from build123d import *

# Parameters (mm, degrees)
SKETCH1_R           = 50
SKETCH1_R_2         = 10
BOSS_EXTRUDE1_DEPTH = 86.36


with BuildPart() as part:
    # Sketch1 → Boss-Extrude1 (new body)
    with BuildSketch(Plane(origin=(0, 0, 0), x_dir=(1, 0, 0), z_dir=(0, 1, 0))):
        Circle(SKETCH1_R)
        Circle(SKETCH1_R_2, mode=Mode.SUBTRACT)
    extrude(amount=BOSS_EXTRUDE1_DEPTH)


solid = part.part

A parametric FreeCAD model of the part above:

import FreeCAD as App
import Part
import Sketcher
Q = App.Units.Quantity

doc = App.newDocument("Part")
params = doc.addObject("Spreadsheet::Sheet", "Params")
for row, (alias, value) in enumerate([
    ("sketch1_diameter", "100 mm"),
    ("sketch1_diameter2", "20 mm"),
    ("pad1_length", "86.36 mm"),
], start=1):
    params.set(f"A{row}", alias)
    params.set(f"B{row}", "=" + value)
    params.setAlias(f"B{row}", alias)

body = doc.addObject("PartDesign::Body", "Body")

# Sketch on XZ plane
sketch1 = body.newObject("Sketcher::SketchObject", "Sketch")
sketch1.AttachmentSupport = (doc.getObject("XZ_Plane"), [""])
sketch1.MapMode = "FlatFace"
sketch1.addGeometry(Part.Circle(App.Vector(0, 0, 0), App.Vector(0, 0, 1), 50), False)
sketch1.addGeometry(Part.Circle(App.Vector(0, 0, 0), App.Vector(0, 0, 1), 10), False)
sketch1.addConstraint(Sketcher.Constraint("Coincident", 0, 3, -1, 1))
sketch1.addConstraint(Sketcher.Constraint("Coincident", 1, 3, -1, 1))
sketch1.addConstraint(Sketcher.Constraint("Diameter", 0, Q("100 mm")))
sketch1.addConstraint(Sketcher.Constraint("Diameter", 1, Q("20 mm")))
sketch1.setExpression("Constraints[2]", "Params.sketch1_diameter")
sketch1.setExpression("Constraints[3]", "Params.sketch1_diameter2")
pad1 = body.newObject("PartDesign::Pad", "Pad")
pad1.Profile = sketch1
pad1.setExpression("Length", "Params.pad1_length")
pad1.Reversed = True

doc.recompute()
